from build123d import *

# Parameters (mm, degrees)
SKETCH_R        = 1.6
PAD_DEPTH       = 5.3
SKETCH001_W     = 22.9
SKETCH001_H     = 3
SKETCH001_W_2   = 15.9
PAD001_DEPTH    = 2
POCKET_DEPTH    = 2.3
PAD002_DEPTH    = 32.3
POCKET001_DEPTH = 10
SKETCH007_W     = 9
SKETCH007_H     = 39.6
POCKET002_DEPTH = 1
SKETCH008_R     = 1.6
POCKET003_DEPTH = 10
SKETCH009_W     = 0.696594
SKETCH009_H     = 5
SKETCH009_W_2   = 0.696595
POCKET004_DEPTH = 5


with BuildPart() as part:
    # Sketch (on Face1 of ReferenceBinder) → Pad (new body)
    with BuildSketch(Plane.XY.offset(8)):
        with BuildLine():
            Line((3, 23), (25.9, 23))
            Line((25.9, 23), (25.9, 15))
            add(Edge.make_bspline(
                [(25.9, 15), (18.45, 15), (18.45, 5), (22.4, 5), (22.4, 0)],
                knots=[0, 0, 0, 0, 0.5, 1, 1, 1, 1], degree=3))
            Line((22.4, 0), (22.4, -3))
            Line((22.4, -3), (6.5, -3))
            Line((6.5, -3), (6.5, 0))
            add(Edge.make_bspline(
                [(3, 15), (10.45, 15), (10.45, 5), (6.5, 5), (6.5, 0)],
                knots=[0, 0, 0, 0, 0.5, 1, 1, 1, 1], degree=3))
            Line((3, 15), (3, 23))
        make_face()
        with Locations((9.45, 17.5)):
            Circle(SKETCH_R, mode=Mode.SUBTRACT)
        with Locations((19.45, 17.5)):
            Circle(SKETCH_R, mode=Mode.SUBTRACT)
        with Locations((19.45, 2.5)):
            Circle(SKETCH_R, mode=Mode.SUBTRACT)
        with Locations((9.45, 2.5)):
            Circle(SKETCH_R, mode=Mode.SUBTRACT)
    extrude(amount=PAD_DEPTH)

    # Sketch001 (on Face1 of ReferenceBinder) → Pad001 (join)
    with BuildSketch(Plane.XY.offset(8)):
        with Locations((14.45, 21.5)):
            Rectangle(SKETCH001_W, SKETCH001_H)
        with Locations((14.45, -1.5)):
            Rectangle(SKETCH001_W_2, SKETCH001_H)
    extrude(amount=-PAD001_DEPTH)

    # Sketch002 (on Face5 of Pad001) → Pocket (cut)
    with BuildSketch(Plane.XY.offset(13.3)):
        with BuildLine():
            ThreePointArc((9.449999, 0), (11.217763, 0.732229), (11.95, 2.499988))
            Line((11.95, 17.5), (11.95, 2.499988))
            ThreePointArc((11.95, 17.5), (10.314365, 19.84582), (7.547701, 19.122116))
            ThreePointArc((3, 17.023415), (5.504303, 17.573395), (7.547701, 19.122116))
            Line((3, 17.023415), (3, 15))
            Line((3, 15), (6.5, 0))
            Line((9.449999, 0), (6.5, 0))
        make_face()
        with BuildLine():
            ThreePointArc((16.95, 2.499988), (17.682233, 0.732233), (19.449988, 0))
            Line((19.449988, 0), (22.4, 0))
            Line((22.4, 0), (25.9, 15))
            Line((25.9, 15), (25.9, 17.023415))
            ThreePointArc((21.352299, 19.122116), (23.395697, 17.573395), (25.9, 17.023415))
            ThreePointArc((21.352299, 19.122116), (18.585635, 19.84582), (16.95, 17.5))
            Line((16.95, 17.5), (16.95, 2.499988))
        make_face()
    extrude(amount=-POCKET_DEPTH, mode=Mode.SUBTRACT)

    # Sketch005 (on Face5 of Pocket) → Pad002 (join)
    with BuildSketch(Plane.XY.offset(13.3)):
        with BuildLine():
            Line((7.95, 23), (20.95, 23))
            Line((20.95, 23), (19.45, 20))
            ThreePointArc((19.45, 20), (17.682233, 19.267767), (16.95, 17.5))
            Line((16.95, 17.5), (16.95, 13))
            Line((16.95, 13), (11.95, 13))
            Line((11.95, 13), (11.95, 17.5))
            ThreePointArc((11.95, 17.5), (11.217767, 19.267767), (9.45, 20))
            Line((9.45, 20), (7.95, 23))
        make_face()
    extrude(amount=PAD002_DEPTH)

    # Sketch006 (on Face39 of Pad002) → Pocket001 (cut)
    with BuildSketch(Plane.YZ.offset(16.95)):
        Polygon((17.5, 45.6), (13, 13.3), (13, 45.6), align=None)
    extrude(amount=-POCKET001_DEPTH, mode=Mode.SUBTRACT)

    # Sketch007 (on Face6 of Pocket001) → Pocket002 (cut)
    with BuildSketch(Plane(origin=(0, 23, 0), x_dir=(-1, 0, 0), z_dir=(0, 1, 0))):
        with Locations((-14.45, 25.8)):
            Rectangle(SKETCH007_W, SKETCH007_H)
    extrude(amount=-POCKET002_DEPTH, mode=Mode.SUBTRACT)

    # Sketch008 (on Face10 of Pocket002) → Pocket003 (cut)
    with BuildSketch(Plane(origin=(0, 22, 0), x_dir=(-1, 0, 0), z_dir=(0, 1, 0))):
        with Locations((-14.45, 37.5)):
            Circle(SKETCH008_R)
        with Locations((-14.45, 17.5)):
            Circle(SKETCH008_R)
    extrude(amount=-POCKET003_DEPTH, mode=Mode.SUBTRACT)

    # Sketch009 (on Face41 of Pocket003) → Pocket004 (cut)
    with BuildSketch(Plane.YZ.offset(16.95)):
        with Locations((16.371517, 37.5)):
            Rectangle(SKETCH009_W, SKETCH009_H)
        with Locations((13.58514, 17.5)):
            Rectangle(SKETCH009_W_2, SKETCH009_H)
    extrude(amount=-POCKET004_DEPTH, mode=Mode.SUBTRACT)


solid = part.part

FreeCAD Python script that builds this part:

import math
import FreeCAD as App
import Part
import Sketcher

V = App.Vector

doc = App.newDocument("Part")
body = doc.addObject("PartDesign::Body", "Body")

sketch1 = body.newObject("Sketcher::SketchObject", "Sketch")
sketch1.AttachmentSupport = (doc.getObject("XY_Plane"), [""])
sketch1.MapMode = "FlatFace"
sketch1.AttachmentOffset = App.Placement(V(0, 0, 8), App.Rotation())
sketch1.addGeometry(Part.LineSegment(V(25.9, 23, 0), V(3, 23, 0)), False)
sketch1.addGeometry(Part.LineSegment(V(3, 23, 0), V(3, 15, 0)), False)
sketch1.addGeometry(Part.BSplineCurve([V(3, 15, 0), V(10.45, 15, 0), V(10.45, 5, 0), V(6.5, 5, 0), V(6.5, 0, 0)], [4, 1, 4], [0, 0.5, 1], False, 3, [1, 1, 1, 1, 1], False), False)
sketch1.addGeometry(Part.LineSegment(V(6.5, 0, 0), V(6.5, -3, 0)), False)
sketch1.addGeometry(Part.LineSegment(V(6.5, -3, 0), V(22.4, -3, 0)), False)
sketch1.addGeometry(Part.LineSegment(V(22.4, -3, 0), V(22.4, 0, 0)), False)
sketch1.addGeometry(Part.BSplineCurve([V(25.9, 15, 0), V(18.45, 15, 0), V(18.45, 5, 0), V(22.4, 5, 0), V(22.4, 0, 0)], [4, 1, 4], [0, 0.5, 1], False, 3, [1, 1, 1, 1, 1], False), False)
sketch1.addGeometry(Part.LineSegment(V(25.9, 15, 0), V(25.9, 23, 0)), False)
sketch1.addGeometry(Part.Circle(V(19.45, 2.5, 0), V(0, 0, 1), 1.6), False)
sketch1.addGeometry(Part.Circle(V(9.45, 2.5, 0), V(0, 0, 1), 1.6), False)
sketch1.addGeometry(Part.Circle(V(19.45, 17.5, 0), V(0, 0, 1), 1.6), False)
sketch1.addGeometry(Part.Circle(V(9.45, 17.5, 0), V(0, 0, 1), 1.6), False)
sketch1.addConstraint(Sketcher.Constraint("Block", 2))
sketch1.addConstraint(Sketcher.Constraint("Block", 6))
sketch1.addConstraint(Sketcher.Constraint("Coincident", 0, 2, 1, 1))
sketch1.addConstraint(Sketcher.Constraint("Coincident", 1, 2, 2, 1))
sketch1.addConstraint(Sketcher.Constraint("Coincident", 2, 2, 3, 1))
sketch1.addConstraint(Sketcher.Constraint("Coincident", 3, 2, 4, 1))
sketch1.addConstraint(Sketcher.Constraint("Coincident", 4, 2, 5, 1))
sketch1.addConstraint(Sketcher.Constraint("Coincident", 5, 2, 6, 2))
sketch1.addConstraint(Sketcher.Constraint("Coincident", 6, 1, 7, 1))
sketch1.addConstraint(Sketcher.Constraint("Coincident", 7, 2, 0, 1))
sketch1.addConstraint(Sketcher.Constraint("Horizontal", 0))
sketch1.addConstraint(Sketcher.Constraint("Vertical", 1))
sketch1.addConstraint(Sketcher.Constraint("Vertical", 3))
sketch1.addConstraint(Sketcher.Constraint("Horizontal", 4))
sketch1.addConstraint(Sketcher.Constraint("Vertical", 5))
sketch1.addConstraint(Sketcher.Constraint("Vertical", 7))
sketch1.addConstraint(Sketcher.Constraint("Equal", 8, 9))
sketch1.addConstraint(Sketcher.Constraint("Equal", 9, 10))
sketch1.addConstraint(Sketcher.Constraint("Equal", 10, 11))
sketch1.addConstraint(Sketcher.Constraint("Horizontal", 8, 3, 9, 3))
sketch1.addConstraint(Sketcher.Constraint("Horizontal", 10, 3, 11, 3))
sketch1.addConstraint(Sketcher.Constraint("Vertical", 8, 3, 10, 3))
sketch1.addConstraint(Sketcher.Constraint("Vertical", 9, 3, 11, 3))
sketch1.addConstraint(Sketcher.Constraint("Diameter", 8, 3.2))
sketch1.addConstraint(Sketcher.Constraint("DistanceY", 1, 2, 1, 1, 8.0))
sketch1.addConstraint(Sketcher.Constraint("DistanceY", 3, 2, 3, 1, 3.0))
sketch1.addConstraint(Sketcher.Constraint("DistanceX", 9, 3, 8, 3, 10.0))
sketch1.addConstraint(Sketcher.Constraint("DistanceY", 8, 3, 10, 3, 15.0))
sketch1.addConstraint(Sketcher.Constraint("DistanceY", -1, 1, 8, 3, 2.5))
sketch1.addConstraint(Sketcher.Constraint("DistanceX", -1, 1, 8, 3, 19.45))
pad1 = body.newObject("PartDesign::Pad", "Pad")
pad1.Profile = sketch1
pad1.Length = 5.3

sketch2 = body.newObject("Sketcher::SketchObject", "Sketch001")
sketch2.AttachmentSupport = (doc.getObject("XY_Plane"), [""])
sketch2.MapMode = "FlatFace"
sketch2.AttachmentOffset = App.Placement(V(0, 0, 8), App.Rotation())
sketch2.addGeometry(Part.LineSegment(V(3, 23, 0), V(3, 20, 0)), False)
sketch2.addGeometry(Part.LineSegment(V(3, 20, 0), V(25.9, 20, 0)), False)
sketch2.addGeometry(Part.LineSegment(V(25.9, 20, 0), V(25.9, 23, 0)), False)
sketch2.addGeometry(Part.LineSegment(V(25.9, 23, 0), V(3, 23, 0)), False)
sketch2.addGeometry(Part.LineSegment(V(6.5, 0, 0), V(6.5, -3, 0)), False)
sketch2.addGeometry(Part.LineSegment(V(6.5, -3, 0), V(22.4, -3, 0)), False)
sketch2.addGeometry(Part.LineSegment(V(22.4, -3, 0), V(22.4, 0, 0)), False)
sketch2.addGeometry(Part.LineSegment(V(22.4, 0, 0), V(6.5, 0, 0)), False)
sketch2.addConstraint(Sketcher.Constraint("Coincident", 0, 2, 1, 1))
sketch2.addConstraint(Sketcher.Constraint("Coincident", 1, 2, 2, 1))
sketch2.addConstraint(Sketcher.Constraint("Coincident", 2, 2, 3, 1))
sketch2.addConstraint(Sketcher.Constraint("Coincident", 3, 2, 0, 1))
sketch2.addConstraint(Sketcher.Constraint("Coincident", 4, 2, 5, 1))
sketch2.addConstraint(Sketcher.Constraint("Coincident", 5, 2, 6, 1))
sketch2.addConstraint(Sketcher.Constraint("Coincident", 6, 2, 7, 1))
sketch2.addConstraint(Sketcher.Constraint("Coincident", 7, 2, 4, 1))
sketch2.addConstraint(Sketcher.Constraint("Vertical", 0))
sketch2.addConstraint(Sketcher.Constraint("Horizontal", 1))
sketch2.addConstraint(Sketcher.Constraint("Vertical", 2))
sketch2.addConstraint(Sketcher.Constraint("Horizontal", 3))
sketch2.addConstraint(Sketcher.Constraint("Vertical", 4))
sketch2.addConstraint(Sketcher.Constraint("Horizontal", 5))
sketch2.addConstraint(Sketcher.Constraint("Vertical", 6))
sketch2.addConstraint(Sketcher.Constraint("Horizontal", 7))
sketch2.addConstraint(Sketcher.Constraint("PointOnObject", 6, 2, -1))
sketch2.addConstraint(Sketcher.Constraint("Equal", 2, 4))
sketch2.addConstraint(Sketcher.Constraint("DistanceY", 0, 2, 0, 1, 3.0))
sketch2.addConstraint(Sketcher.Constraint("DistanceX", 1, 1, 1, 2, 22.9))
sketch2.addConstraint(Sketcher.Constraint("DistanceX", 5, 1, 5, 2, 15.9))
sketch2.addConstraint(Sketcher.Constraint("DistanceX", -1, 1, 0, 2, 3.0))
sketch2.addConstraint(Sketcher.Constraint("DistanceY", -1, 1, 0, 2, 20.0))
sketch2.addConstraint(Sketcher.Constraint("DistanceX", -1, 1, 4, 2, 6.5))
pad2 = body.newObject("PartDesign::Pad", "Pad001")
pad2.Profile = sketch2
pad2.Length = 2
pad2.Reversed = True

sketch3 = body.newObject("Sketcher::SketchObject", "Sketch002")
sketch3.AttachmentSupport = (doc.getObject("XY_Plane"), [""])
sketch3.MapMode = "FlatFace"
sketch3.AttachmentOffset = App.Placement(V(0, 0, 13.3), App.Rotation())
sketch3.addGeometry(Part.ArcOfCircle(Part.Circle(V(9.5, 2.5, 0), V(0, 0, 1), 2.5), math.radians(-90), math.radians(0)), False)
sketch3.addGeometry(Part.LineSegment(V(11.9, 2.5, 0), V(11.9, 17.5, 0)), False)
sketch3.addGeometry(Part.ArcOfCircle(Part.Circle(V(9.4, 17.5, 0), V(0, 0, 1), 2.5), math.radians(0), math.radians(140)), False)
sketch3.addGeometry(Part.ArcOfCircle(Part.Circle(V(3, 23, 0), V(0, 0, 1), 6), math.radians(-90), math.radians(-40)), False)
sketch3.addGeometry(Part.LineSegment(V(3, 17, 0), V(3, 15, 0)), False)
sketch3.addGeometry(Part.LineSegment(V(3, 15, 0), V(6.5, 0, 0)), False)
sketch3.addGeometry(Part.LineSegment(V(6.5, 0, 0), V(9.4, 0, 0)), False)
sketch3.addGeometry(Part.ArcOfCircle(Part.Circle(V(19.4, 2.5, 0), V(0, 0, 1), 2.5), math.radians(-180), math.radians(-90)), False)
sketch3.addGeometry(Part.LineSegment(V(19.4, 0, 0), V(22.4, 0, 0)), False)
sketch3.addGeometry(Part.LineSegment(V(22.4, 0, 0), V(25.9, 15, 0)), False)
sketch3.addGeometry(Part.LineSegment(V(25.9, 15, 0), V(25.9, 17, 0)), False)
sketch3.addGeometry(Part.ArcOfCircle(Part.Circle(V(25.9, 23, 0), V(0, 0, 1), 6), math.radians(-140), math.radians(-90)), False)
sketch3.addGeometry(Part.ArcOfCircle(Part.Circle(V(19.5, 17.5, 0), V(0, 0, 1), 2.5), math.radians(40), math.radians(180)), False)
sketch3.addGeometry(Part.LineSegment(V(16.9, 17.5, 0), V(16.9, 2.5, 0)), False)
sketch3.addConstraint(Sketcher.Constraint("Coincident", 0, 2, 1, 1))
sketch3.addConstraint(Sketcher.Constraint("Tangent", 1, 2, 2, 1))
sketch3.addConstraint(Sketcher.Constraint("Tangent", 2, 2, 3, 2))
sketch3.addConstraint(Sketcher.Constraint("Coincident", 3, 1, 4, 1))
sketch3.addConstraint(Sketcher.Constraint("Coincident", 4, 2, 5, 1))
sketch3.addConstraint(Sketcher.Constraint("Coincident", 5, 2, 6, 1))
sketch3.addConstraint(Sketcher.Constraint("Tangent", 6, 2, 0, 1))
sketch3.addConstraint(Sketcher.Constraint("Coincident", 7, 2, 8, 1))
sketch3.addConstraint(Sketcher.Constraint("Coincident", 8, 2, 9, 1))
sketch3.addConstraint(Sketcher.Constraint("Coincident", 9, 2, 10, 1))
sketch3.addConstraint(Sketcher.Constraint("Coincident", 10, 2, 11, 2))
sketch3.addConstraint(Sketcher.Constraint("Tangent", 11, 1, 12, 1))
sketch3.addConstraint(Sketcher.Constraint("Tangent", 12, 2, 13, 1))
sketch3.addConstraint(Sketcher.Constraint("Coincident", 13, 2, 7, 1))
sketch3.addConstraint(Sketcher.Constraint("Vertical", 1))
sketch3.addConstraint(Sketcher.Constraint("Vertical", 4))
sketch3.addConstraint(Sketcher.Constraint("Horizontal", 6))
sketch3.addConstraint(Sketcher.Constraint("Horizontal", 8))
sketch3.addConstraint(Sketcher.Constraint("Vertical", 10))
sketch3.addConstraint(Sketcher.Constraint("Vertical", 13))
sketch3.addConstraint(Sketcher.Constraint("Equal", 0, 2))
sketch3.addConstraint(Sketcher.Constraint("Equal", 2, 7))
sketch3.addConstraint(Sketcher.Constraint("Equal", 3, 11))
sketch3.addConstraint(Sketcher.Constraint("Equal", 7, 12))
sketch3.addConstraint(Sketcher.Constraint("PointOnObject", 5, 2, -1))
sketch3.addConstraint(Sketcher.Constraint("PointOnObject", 7, 2, -1))
sketch3.addConstraint(Sketcher.Constraint("Horizontal", 3, 3, 11, 3))
sketch3.addConstraint(Sketcher.Constraint("Horizontal", 2, 3, 12, 3))
sketch3.addConstraint(Sketcher.Constraint("Horizontal", 4, 2, 9, 2))
sketch3.addConstraint(Sketcher.Constraint("Horizontal", 0, 2, 13, 2))
sketch3.addConstraint(Sketcher.Constraint("Equal", 5, 9))
sketch3.addConstraint(Sketcher.Constraint("Radius", 0, 2.5))
sketch3.addConstraint(Sketcher.Constraint("DistanceX", -1, 1, 3, 1, 3.0))
sketch3.addConstraint(Sketcher.Constraint("DistanceY", -1, 1, 4, 2, 15.0))
sketch3.addConstraint(Sketcher.Constraint("DistanceY", 0, 3, 2, 3, 14.999999))
sketch3.addConstraint(Sketcher.Constraint("DistanceX", 0, 3, 7, 3, 10.0))
sketch3.addConstraint(Sketcher.Constraint("DistanceX", 6, 1, 6, 2, 2.949999))
sketch3.addConstraint(Sketcher.Constraint("DistanceX", -1, 1, 5, 2, 6.5))
sketch3.addConstraint(Sketcher.Constraint("DistanceX", -1, 1, 8, 2, 22.4))
sketch3.addConstraint(Sketcher.Constraint("Radius", 3, 5.976579))
sketch3.addConstraint(Sketcher.Constraint("DistanceX", 8, 1, 8, 2, 2.950012))
sketch3.addConstraint(Sketcher.Constraint("DistanceX", -1, 1, 2, 2, 7.547701))
sketch3.addConstraint(Sketcher.Constraint("DistanceY", 1, 1, 1, 2, 15.000012))
pocket1 = body.newObject("PartDesign::Pocket", "Pocket")
pocket1.Profile = sketch3
pocket1.Length = 2.3

sketch4 = body.newObject("Sketcher::SketchObject", "Sketch003")
sketch4.AttachmentSupport = (doc.getObject("XY_Plane"), [""])
sketch4.MapMode = "FlatFace"
sketch4.AttachmentOffset = App.Placement(V(0, 0, 13.3), App.Rotation())
sketch4.addGeometry(Part.LineSegment(V(20.9, 23, 0), V(8, 23, 0)), False)
sketch4.addGeometry(Part.LineSegment(V(8, 23, 0), V(9.4, 20, 0)), False)
sketch4.addGeometry(Part.ArcOfCircle(Part.Circle(V(9.5, 17.5, 0), V(0, 0, 1), 2.5), math.radians(0), math.radians(90)), False)
sketch4.addGeometry(Part.LineSegment(V(11.9, 17.5, 0), V(11.9, 13, 0)), False)
sketch4.addGeometry(Part.LineSegment(V(11.9, 13, 0), V(16.9, 13, 0)), False)
sketch4.addGeometry(Part.LineSegment(V(16.9, 13, 0), V(16.9, 17.5, 0)), False)
sketch4.addGeometry(Part.ArcOfCircle(Part.Circle(V(19.4, 17.5, 0), V(0, 0, 1), 2.5), math.radians(90), math.radians(180)), False)
sketch4.addGeometry(Part.LineSegment(V(19.4, 20, 0), V(20.9, 23, 0)), False)
sketch4.addConstraint(Sketcher.Constraint("Coincident", 0, 2, 1, 1))
sketch4.addConstraint(Sketcher.Constraint("Coincident", 1, 2, 2, 2))
sketch4.addConstraint(Sketcher.Constraint("Tangent", 2, 1, 3, 1))
sketch4.addConstraint(Sketcher.Constraint("Coincident", 3, 2, 4, 1))
sketch4.addConstraint(Sketcher.Constraint("Coincident", 4, 2, 5, 1))
sketch4.addConstraint(Sketcher.Constraint("Tangent", 5, 2, 6, 2))
sketch4.addConstraint(Sketcher.Constraint("Coincident", 6, 1, 7, 1))
sketch4.addConstraint(Sketcher.Constraint("Coincident", 7, 2, 0, 1))
sketch4.addConstraint(Sketcher.Constraint("Horizontal", 0))
sketch4.addConstraint(Sketcher.Constraint("Vertical", 3))
sketch4.addConstraint(Sketcher.Constraint("Horizontal", 4))
sketch4.addConstraint(Sketcher.Constraint("Vertical", 5))
sketch4.addConstraint(Sketcher.Constraint("Equal", 2, 6))
sketch4.addConstraint(Sketcher.Constraint("Horizontal", 2, 3, 6, 3))
sketch4.addConstraint(Sketcher.Constraint("Vertical", 2, 3, 1, 2))
sketch4.addConstraint(Sketcher.Constraint("Equal", 1, 7))
sketch4.addConstraint(Sketcher.Constraint("Radius", 2, 2.5))
sketch4.addConstraint(Sketcher.Constraint("DistanceX", 0, 2, 0, 1, 13.0))
sketch4.addConstraint(Sketcher.Constraint("DistanceX", 4, 1, 4, 2, 5.0))
sketch4.addConstraint(Sketcher.Constraint("DistanceY", 3, 2, 3, 1, 4.5))
sketch4.addConstraint(Sketcher.Constraint("DistanceY", -1, 1, 0, 2, 23.0))
sketch4.addConstraint(Sketcher.Constraint("DistanceY", -1, 1, 1, 2, 20.0))
sketch4.addConstraint(Sketcher.Constraint("DistanceX", 0, 2, 2, 1, 4.0))
sketch4.addConstraint(Sketcher.Constraint("DistanceX", -1, 1, 2, 3, 9.45))
pad3 = body.newObject("PartDesign::Pad", "Pad002")
pad3.Profile = sketch4
pad3.Length = 32.3

sketch5 = body.newObject("Sketcher::SketchObject", "Sketch004")
sketch5.AttachmentSupport = (doc.getObject("YZ_Plane"), [""])
sketch5.MapMode = "FlatFace"
sketch5.AttachmentOffset = App.Placement(V(0, 0, 16.95), App.Rotation())
sketch5.addGeometry(Part.LineSegment(V(13, 13.3, 0), V(17.5, 45.6, 0)), False)
sketch5.addGeometry(Part.LineSegment(V(17.5, 45.6, 0), V(13, 45.6, 0)), False)
sketch5.addGeometry(Part.LineSegment(V(13, 45.6, 0), V(13, 13.3, 0)), False)
sketch5.addConstraint(Sketcher.Constraint("Coincident", 0, 2, 1, 1))
sketch5.addConstraint(Sketcher.Constraint("Coincident", 1, 2, 2, 1))
sketch5.addConstraint(Sketcher.Constraint("Coincident", 2, 2, 0, 1))
sketch5.addConstraint(Sketcher.Constraint("Horizontal", 1))
sketch5.addConstraint(Sketcher.Constraint("Vertical", 2))
sketch5.addConstraint(Sketcher.Constraint("DistanceX", 1, 2, 1, 1, 4.5))
sketch5.addConstraint(Sketcher.Constraint("DistanceY", 2, 2, 2, 1, 32.3))
sketch5.addConstraint(Sketcher.Constraint("DistanceX", -1, 1, 1, 2, 13.0))
sketch5.addConstraint(Sketcher.Constraint("DistanceY", -1, 1, 0, 2, 45.6))
pocket2 = body.newObject("PartDesign::Pocket", "Pocket001")
pocket2.Profile = sketch5
pocket2.Length = 10

sketch6 = body.newObject("Sketcher::SketchObject", "Sketch005")
sketch6.AttachmentSupport = (doc.getObject("XZ_Plane"), [""])
sketch6.MapMode = "FlatFace"
sketch6.AttachmentOffset = App.Placement(V(0, 0, -23), App.Rotation())
sketch6.addGeometry(Part.LineSegment(V(19, 46, 0), V(19, 6, 0)), False)
sketch6.addGeometry(Part.LineSegment(V(19, 6, 0), V(10, 6, 0)), False)
sketch6.addGeometry(Part.LineSegment(V(10, 6, 0), V(10, 46, 0)), False)
sketch6.addGeometry(Part.LineSegment(V(10, 46, 0), V(19, 46, 0)), False)
sketch6.addConstraint(Sketcher.Constraint("Coincident", 0, 2, 1, 1))
sketch6.addConstraint(Sketcher.Constraint("Coincident", 1, 2, 2, 1))
sketch6.addConstraint(Sketcher.Constraint("Coincident", 2, 2, 3, 1))
sketch6.addConstraint(Sketcher.Constraint("Coincident", 3, 2, 0, 1))
sketch6.addConstraint(Sketcher.Constraint("Vertical", 0))
sketch6.addConstraint(Sketcher.Constraint("Horizontal", 1))
sketch6.addConstraint(Sketcher.Constraint("Vertical", 2))
sketch6.addConstraint(Sketcher.Constraint("Horizontal", 3))
sketch6.addConstraint(Sketcher.Constraint("DistanceX", 1, 2, 1, 1, 9.0))
sketch6.addConstraint(Sketcher.Constraint("DistanceY", 0, 2, 0, 1, 39.6))
sketch6.addConstraint(Sketcher.Constraint("DistanceY", -1, 1, 0, 2, 6.0))
sketch6.addConstraint(Sketcher.Constraint("DistanceX", -1, 1, 0, 2, 18.95))
pocket3 = body.newObject("PartDesign::Pocket", "Pocket002")
pocket3.Profile = sketch6
pocket3.Length = 1
pocket3.Reversed = True

sketch7 = body.newObject("Sketcher::SketchObject", "Sketch006")
sketch7.AttachmentSupport = (doc.getObject("XZ_Plane"), [""])
sketch7.MapMode = "FlatFace"
sketch7.AttachmentOffset = App.Placement(V(0, 0, -22), App.Rotation())
sketch7.addGeometry(Part.Circle(V(14.4, 37.5, 0), V(0, 0, 1), 1.6), False)
sketch7.addGeometry(Part.Circle(V(14.4, 17.5, 0), V(0, 0, 1), 1.6), False)
sketch7.addConstraint(Sketcher.Constraint("Equal", 0, 1))
sketch7.addConstraint(Sketcher.Constraint("Vertical", 0, 3, 1, 3))
sketch7.addConstraint(Sketcher.Constraint("Diameter", 0, 3.2))
sketch7.addConstraint(Sketcher.Constraint("DistanceY", 1, 3, 0, 3, 20.0))
sketch7.addConstraint(Sketcher.Constraint("DistanceY", -1, 1, 0, 3, 37.5))
sketch7.addConstraint(Sketcher.Constraint("DistanceX", -1, 1, 0, 3, 14.45))
pocket4 = body.newObject("PartDesign::Pocket", "Pocket003")
pocket4.Profile = sketch7
pocket4.Length = 10
pocket4.Reversed = True

sketch8 = body.newObject("Sketcher::SketchObject", "Sketch007")
sketch8.AttachmentSupport = (doc.getObject("YZ_Plane"), [""])
sketch8.MapMode = "FlatFace"
sketch8.AttachmentOffset = App.Placement(V(0, 0, 16.95), App.Rotation())
sketch8.addGeometry(Part.LineSegment(V(16, 40, 0), V(16, 35, 0)), False)
sketch8.addGeometry(Part.LineSegment(V(16, 35, 0), V(16.7, 35, 0)), False)
sketch8.addGeometry(Part.LineSegment(V(16.7, 35, 0), V(16.7, 40, 0)), False)
sketch8.addGeometry(Part.LineSegment(V(16.7, 40, 0), V(16, 40, 0)), False)
sketch8.addGeometry(Part.LineSegment(V(13.2, 20, 0), V(13.2, 15, 0)), False)
sketch8.addGeometry(Part.LineSegment(V(13.2, 15, 0), V(13.9, 15, 0)), False)
sketch8.addGeometry(Part.LineSegment(V(13.9, 15, 0), V(13.9, 20, 0)), False)
sketch8.addGeometry(Part.LineSegment(V(13.9, 20, 0), V(13.2, 20, 0)), False)
sketch8.addConstraint(Sketcher.Constraint("Coincident", 0, 2, 1, 1))
sketch8.addConstraint(Sketcher.Constraint("Coincident", 1, 2, 2, 1))
sketch8.addConstraint(Sketcher.Constraint("Coincident", 2, 2, 3, 1))
sketch8.addConstraint(Sketcher.Constraint("Coincident", 3, 2, 0, 1))
sketch8.addConstraint(Sketcher.Constraint("Coincident", 4, 2, 5, 1))
sketch8.addConstraint(Sketcher.Constraint("Coincident", 5, 2, 6, 1))
sketch8.addConstraint(Sketcher.Constraint("Coincident", 6, 2, 7, 1))
sketch8.addConstraint(Sketcher.Constraint("Coincident", 7, 2, 4, 1))
sketch8.addConstraint(Sketcher.Constraint("Vertical", 0))
sketch8.addConstraint(Sketcher.Constraint("Horizontal", 1))
sketch8.addConstraint(Sketcher.Constraint("Vertical", 2))
sketch8.addConstraint(Sketcher.Constraint("Horizontal", 3))
sketch8.addConstraint(Sketcher.Constraint("Vertical", 4))
sketch8.addConstraint(Sketcher.Constraint("Horizontal", 5))
sketch8.addConstraint(Sketcher.Constraint("Vertical", 6))
sketch8.addConstraint(Sketcher.Constraint("Horizontal", 7))
sketch8.addConstraint(Sketcher.Constraint("Equal", 3, 5))
sketch8.addConstraint(Sketcher.Constraint("Equal", 2, 4))
sketch8.addConstraint(Sketcher.Constraint("DistanceY", 0, 2, 0, 1, 5.0))
sketch8.addConstraint(Sketcher.Constraint("DistanceY", -1, 1, 0, 2, 35.0))
sketch8.addConstraint(Sketcher.Constraint("DistanceY", -1, 1, 4, 2, 15.0))
sketch8.addConstraint(Sketcher.Constraint("DistanceX", 1, 1, 1, 2, 0.696594))
sketch8.addConstraint(Sketcher.Constraint("DistanceX", -1, 1, 0, 2, 16.02322))
sketch8.addConstraint(Sketcher.Constraint("DistanceX", 4, 2, 1, 2, 3.482971))
pocket5 = body.newObject("PartDesign::Pocket", "Pocket004")
pocket5.Profile = sketch8
pocket5.Length = 5

doc.recompute()
